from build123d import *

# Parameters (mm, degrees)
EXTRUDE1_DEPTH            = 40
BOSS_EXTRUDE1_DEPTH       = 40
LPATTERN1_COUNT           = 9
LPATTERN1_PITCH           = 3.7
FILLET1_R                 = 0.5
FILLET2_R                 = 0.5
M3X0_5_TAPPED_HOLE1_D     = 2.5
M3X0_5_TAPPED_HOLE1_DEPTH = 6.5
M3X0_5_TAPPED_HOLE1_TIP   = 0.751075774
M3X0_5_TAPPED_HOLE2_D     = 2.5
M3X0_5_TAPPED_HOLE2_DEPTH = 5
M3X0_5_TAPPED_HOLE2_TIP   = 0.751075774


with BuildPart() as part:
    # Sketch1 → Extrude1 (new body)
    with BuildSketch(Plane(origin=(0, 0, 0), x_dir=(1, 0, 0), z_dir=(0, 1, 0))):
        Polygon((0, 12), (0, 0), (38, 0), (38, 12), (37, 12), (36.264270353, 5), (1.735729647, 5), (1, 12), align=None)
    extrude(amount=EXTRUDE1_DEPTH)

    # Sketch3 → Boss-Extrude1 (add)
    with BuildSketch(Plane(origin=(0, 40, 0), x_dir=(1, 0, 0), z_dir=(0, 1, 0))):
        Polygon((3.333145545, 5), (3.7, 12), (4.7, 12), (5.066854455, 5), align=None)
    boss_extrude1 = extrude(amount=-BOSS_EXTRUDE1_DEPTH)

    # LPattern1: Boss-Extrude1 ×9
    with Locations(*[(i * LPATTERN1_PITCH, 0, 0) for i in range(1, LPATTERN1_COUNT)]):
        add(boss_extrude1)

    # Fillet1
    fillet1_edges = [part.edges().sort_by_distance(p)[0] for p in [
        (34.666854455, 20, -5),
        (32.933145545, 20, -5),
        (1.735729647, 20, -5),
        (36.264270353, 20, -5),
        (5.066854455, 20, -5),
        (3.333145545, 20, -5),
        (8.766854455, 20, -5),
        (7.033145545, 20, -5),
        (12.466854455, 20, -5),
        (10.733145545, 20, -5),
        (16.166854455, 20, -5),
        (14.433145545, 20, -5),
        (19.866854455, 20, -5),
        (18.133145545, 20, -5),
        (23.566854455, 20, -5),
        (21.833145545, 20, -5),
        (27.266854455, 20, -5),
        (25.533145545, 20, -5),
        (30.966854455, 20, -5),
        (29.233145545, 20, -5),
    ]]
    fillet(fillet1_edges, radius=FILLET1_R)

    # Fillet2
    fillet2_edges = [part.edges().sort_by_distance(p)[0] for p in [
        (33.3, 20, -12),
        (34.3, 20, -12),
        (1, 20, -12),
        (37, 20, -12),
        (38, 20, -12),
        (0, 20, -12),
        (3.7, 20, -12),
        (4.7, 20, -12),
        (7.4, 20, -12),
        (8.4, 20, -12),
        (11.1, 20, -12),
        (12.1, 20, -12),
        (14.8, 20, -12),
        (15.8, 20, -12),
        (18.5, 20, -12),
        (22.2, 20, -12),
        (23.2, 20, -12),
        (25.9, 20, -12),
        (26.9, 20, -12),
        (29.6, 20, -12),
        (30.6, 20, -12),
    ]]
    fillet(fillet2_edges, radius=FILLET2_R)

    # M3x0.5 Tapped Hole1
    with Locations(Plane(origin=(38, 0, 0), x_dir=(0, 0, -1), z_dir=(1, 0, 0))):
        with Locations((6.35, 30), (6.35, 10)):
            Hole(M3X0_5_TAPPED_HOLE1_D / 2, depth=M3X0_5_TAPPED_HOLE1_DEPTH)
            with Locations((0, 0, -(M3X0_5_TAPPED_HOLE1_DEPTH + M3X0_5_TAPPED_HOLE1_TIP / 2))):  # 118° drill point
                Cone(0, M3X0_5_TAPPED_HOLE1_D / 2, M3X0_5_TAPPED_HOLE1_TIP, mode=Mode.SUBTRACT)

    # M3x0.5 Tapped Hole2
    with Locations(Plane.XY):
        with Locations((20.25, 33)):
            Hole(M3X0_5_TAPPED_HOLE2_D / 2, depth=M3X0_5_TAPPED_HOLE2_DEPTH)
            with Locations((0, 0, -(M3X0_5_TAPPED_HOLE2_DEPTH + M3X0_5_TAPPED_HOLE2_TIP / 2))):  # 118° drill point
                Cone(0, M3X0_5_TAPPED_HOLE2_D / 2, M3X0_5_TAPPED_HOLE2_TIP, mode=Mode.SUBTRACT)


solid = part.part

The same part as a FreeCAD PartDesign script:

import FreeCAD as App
import Part
import Sketcher
from FreeCAD import Vector
Q = App.Units.Quantity


def edges_at(feature, points):
    """Names of the edges that pass closest to the given points."""
    edges = feature.Shape.Edges
    near = lambda p: min(range(len(edges)), key=lambda i: edges[i].distToShape(Part.Vertex(*p))[0])
    return sorted({f"Edge{near(p) + 1}" for p in points})


def add_polygon(sketch, points):
    """Adds a closed chain of lines whose ends are joined by coincident constraints."""
    first, n = sketch.GeometryCount, len(points)
    for a, b in zip(points, points[1:] + points[:1]):
        sketch.addGeometry(Part.LineSegment(App.Vector(*a, 0), App.Vector(*b, 0)), False)
    for i in range(n):
        sketch.addConstraint(Sketcher.Constraint("Coincident", first + i, 2, first + (i + 1) % n, 1))

doc = App.newDocument("Part")
params = doc.addObject("Spreadsheet::Sheet", "Params")
for row, (alias, value) in enumerate([
    ("sketch1_width", "38 mm"),
    ("sketch1_width2", "1 mm"),
    ("sketch1_height", "12 mm"),
    ("pad1_length", "40 mm"),
    ("sketch2_width", "1 mm"),
    ("pad2_length", "40 mm"),
    ("linearpattern_pitch", "3.7 mm"),
    ("fillet_radius", "0.5 mm"),
    ("fillet2_radius", "0.5 mm"),
    ("sketch3_diameter", "2.5 mm"),
    ("hole_diameter", "2.5 mm"),
    ("hole_depth", "6.5 mm"),
    ("sketch4_diameter", "2.5 mm"),
    ("hole2_diameter", "2.5 mm"),
    ("hole2_depth", "5 mm"),
], start=1):
    params.set(f"A{row}", alias)
    params.set(f"B{row}", "=" + value)
    params.setAlias(f"B{row}", alias)

body = doc.addObject("PartDesign::Body", "Body")

# Sketch on XZ plane
sketch1 = body.newObject("Sketcher::SketchObject", "Sketch")
sketch1.AttachmentSupport = (doc.getObject("XZ_Plane"), [""])
sketch1.MapMode = "FlatFace"
add_polygon(sketch1, [(0, -12), (0, 0), (38, 0), (38, -12), (37, -12), (36.3, -5), (1.7, -5), (1, -12)])  # lines 0-7
sketch1.addConstraint(Sketcher.Constraint("Vertical", 0))
sketch1.addConstraint(Sketcher.Constraint("Horizontal", 1))
sketch1.addConstraint(Sketcher.Constraint("Vertical", 2))
sketch1.addConstraint(Sketcher.Constraint("Horizontal", 3))
sketch1.addConstraint(Sketcher.Constraint("Horizontal", 5))
sketch1.addConstraint(Sketcher.Constraint("Horizontal", 7))
sketch1.addConstraint(Sketcher.Constraint("Coincident", 0, 2, -1, 1))
sketch1.addConstraint(Sketcher.Constraint("Horizontal", 3, 2, 6, 2))
sketch1.addConstraint(Sketcher.Constraint("Equal", 3, 7))
sketch1.addConstraint(Sketcher.Constraint("Equal", 4, 6))
sketch1.addConstraint(Sketcher.Constraint("DistanceX", 1, 1, 1, 2, 38.0))
sketch1.addConstraint(Sketcher.Constraint("DistanceX", 3, 2, 3, 1, 1.0))
sketch1.addConstraint(Sketcher.Constraint("DistanceY", 0, 1, 0, 2, 12.0))
sketch1.addConstraint(Sketcher.Constraint("Angle", 4, Q("96 deg")))
sketch1.addConstraint(Sketcher.Constraint("DistanceY", 4, 2, -1, 1, 5.0))
sketch1.setExpression("Constraints[18]", "Params.sketch1_width")
sketch1.setExpression("Constraints[19]", "Params.sketch1_width2")
sketch1.setExpression("Constraints[20]", "Params.sketch1_height")
pad1 = body.newObject("PartDesign::Pad", "Pad")
pad1.Profile = sketch1
pad1.setExpression("Length", "Params.pad1_length")
pad1.Reversed = True

# Sketch on XZ plane
sketch2 = body.newObject("Sketcher::SketchObject", "Sketch001")
sketch2.AttachmentSupport = (doc.getObject("XZ_Plane"), [""])
sketch2.MapMode = "FlatFace"
sketch2.AttachmentOffset = App.Placement(Vector(0, 0, -40), App.Rotation())
add_polygon(sketch2, [(3.7, -12), (3.3, -5), (5.1, -5), (4.7, -12)])  # lines 0-3
sketch2.addConstraint(Sketcher.Constraint("Horizontal", 1))
sketch2.addConstraint(Sketcher.Constraint("Horizontal", 3))
sketch2.addConstraint(Sketcher.Constraint("Equal", 0, 2))
sketch2.addConstraint(Sketcher.Constraint("DistanceX", 3, 2, 3, 1, 1.0))
sketch2.addConstraint(Sketcher.Constraint("Angle", 0, Q("93 deg")))
sketch2.addConstraint(Sketcher.Constraint("DistanceY", 0, 2, -1, 1, 5.0))
sketch2.addConstraint(Sketcher.Constraint("DistanceY", 2, 2, -1, 1, 12.0))
sketch2.addConstraint(Sketcher.Constraint("DistanceX", -1, 1, 2, 2, 4.7))
sketch2.setExpression("Constraints[7]", "Params.sketch2_width")
pad2 = body.newObject("PartDesign::Pad", "Pad001")
pad2.Profile = sketch2
pad2.setExpression("Length", "Params.pad2_length")
doc.recompute()

linearpattern = body.newObject("PartDesign::LinearPattern", "LinearPattern")
linearpattern.Originals = [pad2]
linearpattern.Direction = (doc.getObject("X_Axis"), [""])
linearpattern.Mode = "offset"
linearpattern.setExpression("Offset", "Params.linearpattern_pitch")
linearpattern.Occurrences = 9
body.Tip = linearpattern
doc.recompute()

fillet = body.newObject("PartDesign::Fillet", "Fillet")
fillet.Base = (linearpattern, edges_at(linearpattern, [
    (34.667, 20, -5),
    (32.933, 20, -5),
    (1.736, 20, -5),
    (36.264, 20, -5),
    (5.067, 20, -5),
    (3.333, 20, -5),
    (8.767, 20, -5),
    (7.033, 20, -5),
    (12.467, 20, -5),
    (10.733, 20, -5),
    (16.167, 20, -5),
    (14.433, 20, -5),
    (19.867, 20, -5),
    (18.133, 20, -5),
    (23.567, 20, -5),
    (21.833, 20, -5),
    (27.267, 20, -5),
    (25.533, 20, -5),
    (30.967, 20, -5),
    (29.233, 20, -5),
]))
fillet.setExpression("Radius", "Params.fillet_radius")
doc.recompute()

fillet2 = body.newObject("PartDesign::Fillet", "Fillet001")
fillet2.Base = (fillet, edges_at(fillet, [
    (33.3, 20, -12),
    (34.3, 20, -12),
    (1, 20, -12),
    (37, 20, -12),
    (38, 20, -12),
    (0, 20, -12),
    (3.7, 20, -12),
    (4.7, 20, -12),
    (7.4, 20, -12),
    (8.4, 20, -12),
    (11.1, 20, -12),
    (12.1, 20, -12),
    (14.8, 20, -12),
    (15.8, 20, -12),
    (18.5, 20, -12),
    (22.2, 20, -12),
    (23.2, 20, -12),
    (25.9, 20, -12),
    (26.9, 20, -12),
    (29.6, 20, -12),
    (30.6, 20, -12),
]))
fillet2.setExpression("Radius", "Params.fillet2_radius")

# Sketch on YZ plane
sketch3 = body.newObject("Sketcher::SketchObject", "Sketch002")
sketch3.AttachmentSupport = (doc.getObject("YZ_Plane"), [""])
sketch3.MapMode = "FlatFace"
sketch3.AttachmentOffset = App.Placement(Vector(0, 0, 38), App.Rotation())
sketch3.addGeometry(Part.Circle(Vector(30, -6.3, 0), Vector(0, 0, 1), 1.2), False)
sketch3.addGeometry(Part.Circle(Vector(10, -6.3, 0), Vector(0, 0, 1), 1.2), False)
sketch3.addConstraint(Sketcher.Constraint("Equal", 0, 1))
sketch3.addConstraint(Sketcher.Constraint("Horizontal", 0, 3, 1, 3))
sketch3.addConstraint(Sketcher.Constraint("Diameter", 0, 2.5))
sketch3.addConstraint(Sketcher.Constraint("DistanceX", -1, 1, 0, 3, 30.0))
sketch3.addConstraint(Sketcher.Constraint("DistanceX", -1, 1, 1, 3, 10.0))
sketch3.addConstraint(Sketcher.Constraint("DistanceY", 0, 3, -1, 1, 6.35))
sketch3.setExpression("Constraints[2]", "Params.sketch3_diameter")
doc.recompute()
hole = body.newObject("PartDesign::Hole", "Hole")
hole.Profile = sketch3
hole.ThreadType = "None"
hole.setExpression("Diameter", "Params.hole_diameter")
hole.DepthType = "Dimension"
hole.setExpression("Depth", "Params.hole_depth")
hole.DrillPoint = "Angled"
hole.DrillPointAngle = 118

# Sketch on XY plane
sketch4 = body.newObject("Sketcher::SketchObject", "Sketch003")
sketch4.AttachmentSupport = (doc.getObject("XY_Plane"), [""])
sketch4.MapMode = "FlatFace"
sketch4.addGeometry(Part.Circle(Vector(20.2, 33, 0), Vector(0, 0, 1), 1.2), False)
sketch4.addConstraint(Sketcher.Constraint("Diameter", 0, 2.5))
sketch4.addConstraint(Sketcher.Constraint("DistanceY", -1, 1, 0, 3, 33.0))
sketch4.addConstraint(Sketcher.Constraint("DistanceX", -1, 1, 0, 3, 20.25))
sketch4.setExpression("Constraints[0]", "Params.sketch4_diameter")
doc.recompute()
hole2 = body.newObject("PartDesign::Hole", "Hole001")
hole2.Profile = sketch4
hole2.ThreadType = "None"
hole2.setExpression("Diameter", "Params.hole2_diameter")
hole2.DepthType = "Dimension"
hole2.setExpression("Depth", "Params.hole2_depth")
hole2.DrillPoint = "Angled"
hole2.DrillPointAngle = 118

doc.recompute()
